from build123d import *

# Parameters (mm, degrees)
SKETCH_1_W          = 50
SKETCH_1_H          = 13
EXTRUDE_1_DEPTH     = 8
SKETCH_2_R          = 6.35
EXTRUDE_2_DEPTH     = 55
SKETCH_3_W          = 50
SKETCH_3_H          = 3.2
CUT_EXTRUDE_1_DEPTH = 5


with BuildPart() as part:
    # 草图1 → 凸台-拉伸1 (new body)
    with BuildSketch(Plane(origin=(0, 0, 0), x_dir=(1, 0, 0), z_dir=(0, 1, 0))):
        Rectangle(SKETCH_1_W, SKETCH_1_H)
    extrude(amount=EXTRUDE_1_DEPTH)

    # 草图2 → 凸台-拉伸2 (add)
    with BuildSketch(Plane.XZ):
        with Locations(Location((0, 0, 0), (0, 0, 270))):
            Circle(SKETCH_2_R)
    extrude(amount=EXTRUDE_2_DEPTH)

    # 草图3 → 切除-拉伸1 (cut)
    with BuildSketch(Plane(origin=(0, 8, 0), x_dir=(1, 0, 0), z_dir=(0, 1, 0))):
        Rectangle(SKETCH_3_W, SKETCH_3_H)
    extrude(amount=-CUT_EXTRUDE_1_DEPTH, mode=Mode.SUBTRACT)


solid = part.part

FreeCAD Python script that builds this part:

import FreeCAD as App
import Part
import Sketcher
from FreeCAD import Vector

doc = App.newDocument("Part")
body = doc.addObject("PartDesign::Body", "Body")

# Sketch on XZ plane
sketch1 = body.newObject("Sketcher::SketchObject", "Sketch")
sketch1.AttachmentSupport = (doc.getObject("XZ_Plane"), [""])
sketch1.MapMode = "FlatFace"
sketch1.addGeometry([
    Part.LineSegment(Vector(-25, -6, 0), Vector(-25, 6, 0)),
    Part.LineSegment(Vector(-25, 6, 0), Vector(25, 6, 0)),
    Part.LineSegment(Vector(25, 6, 0), Vector(25, -6, 0)),
    Part.LineSegment(Vector(25, -6, 0), Vector(-25, -6, 0)),
], False)
sketch1.addConstraint([
    Sketcher.Constraint("Coincident", 0, 2, 1, 1),
    Sketcher.Constraint("Coincident", 1, 2, 2, 1),
    Sketcher.Constraint("Coincident", 2, 2, 3, 1),
    Sketcher.Constraint("Coincident", 3, 2, 0, 1),
    Sketcher.Constraint("Vertical", 0),
    Sketcher.Constraint("Horizontal", 1),
    Sketcher.Constraint("Vertical", 2),
    Sketcher.Constraint("Horizontal", 3),
    Sketcher.Constraint("Symmetric", 0, 2, 2, 2, -1, 1),
    Sketcher.Constraint("DistanceX", 1, 1, 1, 2, 50.0),
    Sketcher.Constraint("DistanceY", 0, 1, 0, 2, 13.0),
])
pad1 = body.newObject("PartDesign::Pad", "Pad")
pad1.Profile = sketch1
pad1.Length = 8
pad1.Reversed = True

# Sketch on XZ plane
sketch2 = body.newObject("Sketcher::SketchObject", "Sketch001")
sketch2.AttachmentSupport = (doc.getObject("XZ_Plane"), [""])
sketch2.MapMode = "FlatFace"
sketch2.addGeometry(Part.Circle(Vector(0, 0, 0), Vector(0, 0, 1), 6), False)
sketch2.addConstraint([
    Sketcher.Constraint("Coincident", 0, 3, -1, 1),
    Sketcher.Constraint("Diameter", 0, 12.7),
])
pad2 = body.newObject("PartDesign::Pad", "Pad001")
pad2.Profile = sketch2
pad2.Length = 55

# Sketch on XZ plane
sketch3 = body.newObject("Sketcher::SketchObject", "Sketch002")
sketch3.AttachmentSupport = (doc.getObject("XZ_Plane"), [""])
sketch3.MapMode = "FlatFace"
sketch3.AttachmentOffset = App.Placement(Vector(0, 0, -8), App.Rotation())
sketch3.addGeometry([
    Part.LineSegment(Vector(-25, -1.6, 0), Vector(-25, 1.6, 0)),
    Part.LineSegment(Vector(-25, 1.6, 0), Vector(25, 1.6, 0)),
    Part.LineSegment(Vector(25, 1.6, 0), Vector(25, -1.6, 0)),
    Part.LineSegment(Vector(25, -1.6, 0), Vector(-25, -1.6, 0)),
], False)
sketch3.addConstraint([
    Sketcher.Constraint("Coincident", 0, 2, 1, 1),
    Sketcher.Constraint("Coincident", 1, 2, 2, 1),
    Sketcher.Constraint("Coincident", 2, 2, 3, 1),
    Sketcher.Constraint("Coincident", 3, 2, 0, 1),
    Sketcher.Constraint("Vertical", 0),
    Sketcher.Constraint("Horizontal", 1),
    Sketcher.Constraint("Vertical", 2),
    Sketcher.Constraint("Horizontal", 3),
    Sketcher.Constraint("Symmetric", 0, 2, 2, 2, -1, 1),
    Sketcher.Constraint("DistanceX", 1, 1, 1, 2, 50.0),
    Sketcher.Constraint("DistanceY", 0, 1, 0, 2, 3.2),
])
pocket1 = body.newObject("PartDesign::Pocket", "Pocket")
pocket1.Profile = sketch3
pocket1.Length = 5
pocket1.Reversed = True

doc.recompute()
